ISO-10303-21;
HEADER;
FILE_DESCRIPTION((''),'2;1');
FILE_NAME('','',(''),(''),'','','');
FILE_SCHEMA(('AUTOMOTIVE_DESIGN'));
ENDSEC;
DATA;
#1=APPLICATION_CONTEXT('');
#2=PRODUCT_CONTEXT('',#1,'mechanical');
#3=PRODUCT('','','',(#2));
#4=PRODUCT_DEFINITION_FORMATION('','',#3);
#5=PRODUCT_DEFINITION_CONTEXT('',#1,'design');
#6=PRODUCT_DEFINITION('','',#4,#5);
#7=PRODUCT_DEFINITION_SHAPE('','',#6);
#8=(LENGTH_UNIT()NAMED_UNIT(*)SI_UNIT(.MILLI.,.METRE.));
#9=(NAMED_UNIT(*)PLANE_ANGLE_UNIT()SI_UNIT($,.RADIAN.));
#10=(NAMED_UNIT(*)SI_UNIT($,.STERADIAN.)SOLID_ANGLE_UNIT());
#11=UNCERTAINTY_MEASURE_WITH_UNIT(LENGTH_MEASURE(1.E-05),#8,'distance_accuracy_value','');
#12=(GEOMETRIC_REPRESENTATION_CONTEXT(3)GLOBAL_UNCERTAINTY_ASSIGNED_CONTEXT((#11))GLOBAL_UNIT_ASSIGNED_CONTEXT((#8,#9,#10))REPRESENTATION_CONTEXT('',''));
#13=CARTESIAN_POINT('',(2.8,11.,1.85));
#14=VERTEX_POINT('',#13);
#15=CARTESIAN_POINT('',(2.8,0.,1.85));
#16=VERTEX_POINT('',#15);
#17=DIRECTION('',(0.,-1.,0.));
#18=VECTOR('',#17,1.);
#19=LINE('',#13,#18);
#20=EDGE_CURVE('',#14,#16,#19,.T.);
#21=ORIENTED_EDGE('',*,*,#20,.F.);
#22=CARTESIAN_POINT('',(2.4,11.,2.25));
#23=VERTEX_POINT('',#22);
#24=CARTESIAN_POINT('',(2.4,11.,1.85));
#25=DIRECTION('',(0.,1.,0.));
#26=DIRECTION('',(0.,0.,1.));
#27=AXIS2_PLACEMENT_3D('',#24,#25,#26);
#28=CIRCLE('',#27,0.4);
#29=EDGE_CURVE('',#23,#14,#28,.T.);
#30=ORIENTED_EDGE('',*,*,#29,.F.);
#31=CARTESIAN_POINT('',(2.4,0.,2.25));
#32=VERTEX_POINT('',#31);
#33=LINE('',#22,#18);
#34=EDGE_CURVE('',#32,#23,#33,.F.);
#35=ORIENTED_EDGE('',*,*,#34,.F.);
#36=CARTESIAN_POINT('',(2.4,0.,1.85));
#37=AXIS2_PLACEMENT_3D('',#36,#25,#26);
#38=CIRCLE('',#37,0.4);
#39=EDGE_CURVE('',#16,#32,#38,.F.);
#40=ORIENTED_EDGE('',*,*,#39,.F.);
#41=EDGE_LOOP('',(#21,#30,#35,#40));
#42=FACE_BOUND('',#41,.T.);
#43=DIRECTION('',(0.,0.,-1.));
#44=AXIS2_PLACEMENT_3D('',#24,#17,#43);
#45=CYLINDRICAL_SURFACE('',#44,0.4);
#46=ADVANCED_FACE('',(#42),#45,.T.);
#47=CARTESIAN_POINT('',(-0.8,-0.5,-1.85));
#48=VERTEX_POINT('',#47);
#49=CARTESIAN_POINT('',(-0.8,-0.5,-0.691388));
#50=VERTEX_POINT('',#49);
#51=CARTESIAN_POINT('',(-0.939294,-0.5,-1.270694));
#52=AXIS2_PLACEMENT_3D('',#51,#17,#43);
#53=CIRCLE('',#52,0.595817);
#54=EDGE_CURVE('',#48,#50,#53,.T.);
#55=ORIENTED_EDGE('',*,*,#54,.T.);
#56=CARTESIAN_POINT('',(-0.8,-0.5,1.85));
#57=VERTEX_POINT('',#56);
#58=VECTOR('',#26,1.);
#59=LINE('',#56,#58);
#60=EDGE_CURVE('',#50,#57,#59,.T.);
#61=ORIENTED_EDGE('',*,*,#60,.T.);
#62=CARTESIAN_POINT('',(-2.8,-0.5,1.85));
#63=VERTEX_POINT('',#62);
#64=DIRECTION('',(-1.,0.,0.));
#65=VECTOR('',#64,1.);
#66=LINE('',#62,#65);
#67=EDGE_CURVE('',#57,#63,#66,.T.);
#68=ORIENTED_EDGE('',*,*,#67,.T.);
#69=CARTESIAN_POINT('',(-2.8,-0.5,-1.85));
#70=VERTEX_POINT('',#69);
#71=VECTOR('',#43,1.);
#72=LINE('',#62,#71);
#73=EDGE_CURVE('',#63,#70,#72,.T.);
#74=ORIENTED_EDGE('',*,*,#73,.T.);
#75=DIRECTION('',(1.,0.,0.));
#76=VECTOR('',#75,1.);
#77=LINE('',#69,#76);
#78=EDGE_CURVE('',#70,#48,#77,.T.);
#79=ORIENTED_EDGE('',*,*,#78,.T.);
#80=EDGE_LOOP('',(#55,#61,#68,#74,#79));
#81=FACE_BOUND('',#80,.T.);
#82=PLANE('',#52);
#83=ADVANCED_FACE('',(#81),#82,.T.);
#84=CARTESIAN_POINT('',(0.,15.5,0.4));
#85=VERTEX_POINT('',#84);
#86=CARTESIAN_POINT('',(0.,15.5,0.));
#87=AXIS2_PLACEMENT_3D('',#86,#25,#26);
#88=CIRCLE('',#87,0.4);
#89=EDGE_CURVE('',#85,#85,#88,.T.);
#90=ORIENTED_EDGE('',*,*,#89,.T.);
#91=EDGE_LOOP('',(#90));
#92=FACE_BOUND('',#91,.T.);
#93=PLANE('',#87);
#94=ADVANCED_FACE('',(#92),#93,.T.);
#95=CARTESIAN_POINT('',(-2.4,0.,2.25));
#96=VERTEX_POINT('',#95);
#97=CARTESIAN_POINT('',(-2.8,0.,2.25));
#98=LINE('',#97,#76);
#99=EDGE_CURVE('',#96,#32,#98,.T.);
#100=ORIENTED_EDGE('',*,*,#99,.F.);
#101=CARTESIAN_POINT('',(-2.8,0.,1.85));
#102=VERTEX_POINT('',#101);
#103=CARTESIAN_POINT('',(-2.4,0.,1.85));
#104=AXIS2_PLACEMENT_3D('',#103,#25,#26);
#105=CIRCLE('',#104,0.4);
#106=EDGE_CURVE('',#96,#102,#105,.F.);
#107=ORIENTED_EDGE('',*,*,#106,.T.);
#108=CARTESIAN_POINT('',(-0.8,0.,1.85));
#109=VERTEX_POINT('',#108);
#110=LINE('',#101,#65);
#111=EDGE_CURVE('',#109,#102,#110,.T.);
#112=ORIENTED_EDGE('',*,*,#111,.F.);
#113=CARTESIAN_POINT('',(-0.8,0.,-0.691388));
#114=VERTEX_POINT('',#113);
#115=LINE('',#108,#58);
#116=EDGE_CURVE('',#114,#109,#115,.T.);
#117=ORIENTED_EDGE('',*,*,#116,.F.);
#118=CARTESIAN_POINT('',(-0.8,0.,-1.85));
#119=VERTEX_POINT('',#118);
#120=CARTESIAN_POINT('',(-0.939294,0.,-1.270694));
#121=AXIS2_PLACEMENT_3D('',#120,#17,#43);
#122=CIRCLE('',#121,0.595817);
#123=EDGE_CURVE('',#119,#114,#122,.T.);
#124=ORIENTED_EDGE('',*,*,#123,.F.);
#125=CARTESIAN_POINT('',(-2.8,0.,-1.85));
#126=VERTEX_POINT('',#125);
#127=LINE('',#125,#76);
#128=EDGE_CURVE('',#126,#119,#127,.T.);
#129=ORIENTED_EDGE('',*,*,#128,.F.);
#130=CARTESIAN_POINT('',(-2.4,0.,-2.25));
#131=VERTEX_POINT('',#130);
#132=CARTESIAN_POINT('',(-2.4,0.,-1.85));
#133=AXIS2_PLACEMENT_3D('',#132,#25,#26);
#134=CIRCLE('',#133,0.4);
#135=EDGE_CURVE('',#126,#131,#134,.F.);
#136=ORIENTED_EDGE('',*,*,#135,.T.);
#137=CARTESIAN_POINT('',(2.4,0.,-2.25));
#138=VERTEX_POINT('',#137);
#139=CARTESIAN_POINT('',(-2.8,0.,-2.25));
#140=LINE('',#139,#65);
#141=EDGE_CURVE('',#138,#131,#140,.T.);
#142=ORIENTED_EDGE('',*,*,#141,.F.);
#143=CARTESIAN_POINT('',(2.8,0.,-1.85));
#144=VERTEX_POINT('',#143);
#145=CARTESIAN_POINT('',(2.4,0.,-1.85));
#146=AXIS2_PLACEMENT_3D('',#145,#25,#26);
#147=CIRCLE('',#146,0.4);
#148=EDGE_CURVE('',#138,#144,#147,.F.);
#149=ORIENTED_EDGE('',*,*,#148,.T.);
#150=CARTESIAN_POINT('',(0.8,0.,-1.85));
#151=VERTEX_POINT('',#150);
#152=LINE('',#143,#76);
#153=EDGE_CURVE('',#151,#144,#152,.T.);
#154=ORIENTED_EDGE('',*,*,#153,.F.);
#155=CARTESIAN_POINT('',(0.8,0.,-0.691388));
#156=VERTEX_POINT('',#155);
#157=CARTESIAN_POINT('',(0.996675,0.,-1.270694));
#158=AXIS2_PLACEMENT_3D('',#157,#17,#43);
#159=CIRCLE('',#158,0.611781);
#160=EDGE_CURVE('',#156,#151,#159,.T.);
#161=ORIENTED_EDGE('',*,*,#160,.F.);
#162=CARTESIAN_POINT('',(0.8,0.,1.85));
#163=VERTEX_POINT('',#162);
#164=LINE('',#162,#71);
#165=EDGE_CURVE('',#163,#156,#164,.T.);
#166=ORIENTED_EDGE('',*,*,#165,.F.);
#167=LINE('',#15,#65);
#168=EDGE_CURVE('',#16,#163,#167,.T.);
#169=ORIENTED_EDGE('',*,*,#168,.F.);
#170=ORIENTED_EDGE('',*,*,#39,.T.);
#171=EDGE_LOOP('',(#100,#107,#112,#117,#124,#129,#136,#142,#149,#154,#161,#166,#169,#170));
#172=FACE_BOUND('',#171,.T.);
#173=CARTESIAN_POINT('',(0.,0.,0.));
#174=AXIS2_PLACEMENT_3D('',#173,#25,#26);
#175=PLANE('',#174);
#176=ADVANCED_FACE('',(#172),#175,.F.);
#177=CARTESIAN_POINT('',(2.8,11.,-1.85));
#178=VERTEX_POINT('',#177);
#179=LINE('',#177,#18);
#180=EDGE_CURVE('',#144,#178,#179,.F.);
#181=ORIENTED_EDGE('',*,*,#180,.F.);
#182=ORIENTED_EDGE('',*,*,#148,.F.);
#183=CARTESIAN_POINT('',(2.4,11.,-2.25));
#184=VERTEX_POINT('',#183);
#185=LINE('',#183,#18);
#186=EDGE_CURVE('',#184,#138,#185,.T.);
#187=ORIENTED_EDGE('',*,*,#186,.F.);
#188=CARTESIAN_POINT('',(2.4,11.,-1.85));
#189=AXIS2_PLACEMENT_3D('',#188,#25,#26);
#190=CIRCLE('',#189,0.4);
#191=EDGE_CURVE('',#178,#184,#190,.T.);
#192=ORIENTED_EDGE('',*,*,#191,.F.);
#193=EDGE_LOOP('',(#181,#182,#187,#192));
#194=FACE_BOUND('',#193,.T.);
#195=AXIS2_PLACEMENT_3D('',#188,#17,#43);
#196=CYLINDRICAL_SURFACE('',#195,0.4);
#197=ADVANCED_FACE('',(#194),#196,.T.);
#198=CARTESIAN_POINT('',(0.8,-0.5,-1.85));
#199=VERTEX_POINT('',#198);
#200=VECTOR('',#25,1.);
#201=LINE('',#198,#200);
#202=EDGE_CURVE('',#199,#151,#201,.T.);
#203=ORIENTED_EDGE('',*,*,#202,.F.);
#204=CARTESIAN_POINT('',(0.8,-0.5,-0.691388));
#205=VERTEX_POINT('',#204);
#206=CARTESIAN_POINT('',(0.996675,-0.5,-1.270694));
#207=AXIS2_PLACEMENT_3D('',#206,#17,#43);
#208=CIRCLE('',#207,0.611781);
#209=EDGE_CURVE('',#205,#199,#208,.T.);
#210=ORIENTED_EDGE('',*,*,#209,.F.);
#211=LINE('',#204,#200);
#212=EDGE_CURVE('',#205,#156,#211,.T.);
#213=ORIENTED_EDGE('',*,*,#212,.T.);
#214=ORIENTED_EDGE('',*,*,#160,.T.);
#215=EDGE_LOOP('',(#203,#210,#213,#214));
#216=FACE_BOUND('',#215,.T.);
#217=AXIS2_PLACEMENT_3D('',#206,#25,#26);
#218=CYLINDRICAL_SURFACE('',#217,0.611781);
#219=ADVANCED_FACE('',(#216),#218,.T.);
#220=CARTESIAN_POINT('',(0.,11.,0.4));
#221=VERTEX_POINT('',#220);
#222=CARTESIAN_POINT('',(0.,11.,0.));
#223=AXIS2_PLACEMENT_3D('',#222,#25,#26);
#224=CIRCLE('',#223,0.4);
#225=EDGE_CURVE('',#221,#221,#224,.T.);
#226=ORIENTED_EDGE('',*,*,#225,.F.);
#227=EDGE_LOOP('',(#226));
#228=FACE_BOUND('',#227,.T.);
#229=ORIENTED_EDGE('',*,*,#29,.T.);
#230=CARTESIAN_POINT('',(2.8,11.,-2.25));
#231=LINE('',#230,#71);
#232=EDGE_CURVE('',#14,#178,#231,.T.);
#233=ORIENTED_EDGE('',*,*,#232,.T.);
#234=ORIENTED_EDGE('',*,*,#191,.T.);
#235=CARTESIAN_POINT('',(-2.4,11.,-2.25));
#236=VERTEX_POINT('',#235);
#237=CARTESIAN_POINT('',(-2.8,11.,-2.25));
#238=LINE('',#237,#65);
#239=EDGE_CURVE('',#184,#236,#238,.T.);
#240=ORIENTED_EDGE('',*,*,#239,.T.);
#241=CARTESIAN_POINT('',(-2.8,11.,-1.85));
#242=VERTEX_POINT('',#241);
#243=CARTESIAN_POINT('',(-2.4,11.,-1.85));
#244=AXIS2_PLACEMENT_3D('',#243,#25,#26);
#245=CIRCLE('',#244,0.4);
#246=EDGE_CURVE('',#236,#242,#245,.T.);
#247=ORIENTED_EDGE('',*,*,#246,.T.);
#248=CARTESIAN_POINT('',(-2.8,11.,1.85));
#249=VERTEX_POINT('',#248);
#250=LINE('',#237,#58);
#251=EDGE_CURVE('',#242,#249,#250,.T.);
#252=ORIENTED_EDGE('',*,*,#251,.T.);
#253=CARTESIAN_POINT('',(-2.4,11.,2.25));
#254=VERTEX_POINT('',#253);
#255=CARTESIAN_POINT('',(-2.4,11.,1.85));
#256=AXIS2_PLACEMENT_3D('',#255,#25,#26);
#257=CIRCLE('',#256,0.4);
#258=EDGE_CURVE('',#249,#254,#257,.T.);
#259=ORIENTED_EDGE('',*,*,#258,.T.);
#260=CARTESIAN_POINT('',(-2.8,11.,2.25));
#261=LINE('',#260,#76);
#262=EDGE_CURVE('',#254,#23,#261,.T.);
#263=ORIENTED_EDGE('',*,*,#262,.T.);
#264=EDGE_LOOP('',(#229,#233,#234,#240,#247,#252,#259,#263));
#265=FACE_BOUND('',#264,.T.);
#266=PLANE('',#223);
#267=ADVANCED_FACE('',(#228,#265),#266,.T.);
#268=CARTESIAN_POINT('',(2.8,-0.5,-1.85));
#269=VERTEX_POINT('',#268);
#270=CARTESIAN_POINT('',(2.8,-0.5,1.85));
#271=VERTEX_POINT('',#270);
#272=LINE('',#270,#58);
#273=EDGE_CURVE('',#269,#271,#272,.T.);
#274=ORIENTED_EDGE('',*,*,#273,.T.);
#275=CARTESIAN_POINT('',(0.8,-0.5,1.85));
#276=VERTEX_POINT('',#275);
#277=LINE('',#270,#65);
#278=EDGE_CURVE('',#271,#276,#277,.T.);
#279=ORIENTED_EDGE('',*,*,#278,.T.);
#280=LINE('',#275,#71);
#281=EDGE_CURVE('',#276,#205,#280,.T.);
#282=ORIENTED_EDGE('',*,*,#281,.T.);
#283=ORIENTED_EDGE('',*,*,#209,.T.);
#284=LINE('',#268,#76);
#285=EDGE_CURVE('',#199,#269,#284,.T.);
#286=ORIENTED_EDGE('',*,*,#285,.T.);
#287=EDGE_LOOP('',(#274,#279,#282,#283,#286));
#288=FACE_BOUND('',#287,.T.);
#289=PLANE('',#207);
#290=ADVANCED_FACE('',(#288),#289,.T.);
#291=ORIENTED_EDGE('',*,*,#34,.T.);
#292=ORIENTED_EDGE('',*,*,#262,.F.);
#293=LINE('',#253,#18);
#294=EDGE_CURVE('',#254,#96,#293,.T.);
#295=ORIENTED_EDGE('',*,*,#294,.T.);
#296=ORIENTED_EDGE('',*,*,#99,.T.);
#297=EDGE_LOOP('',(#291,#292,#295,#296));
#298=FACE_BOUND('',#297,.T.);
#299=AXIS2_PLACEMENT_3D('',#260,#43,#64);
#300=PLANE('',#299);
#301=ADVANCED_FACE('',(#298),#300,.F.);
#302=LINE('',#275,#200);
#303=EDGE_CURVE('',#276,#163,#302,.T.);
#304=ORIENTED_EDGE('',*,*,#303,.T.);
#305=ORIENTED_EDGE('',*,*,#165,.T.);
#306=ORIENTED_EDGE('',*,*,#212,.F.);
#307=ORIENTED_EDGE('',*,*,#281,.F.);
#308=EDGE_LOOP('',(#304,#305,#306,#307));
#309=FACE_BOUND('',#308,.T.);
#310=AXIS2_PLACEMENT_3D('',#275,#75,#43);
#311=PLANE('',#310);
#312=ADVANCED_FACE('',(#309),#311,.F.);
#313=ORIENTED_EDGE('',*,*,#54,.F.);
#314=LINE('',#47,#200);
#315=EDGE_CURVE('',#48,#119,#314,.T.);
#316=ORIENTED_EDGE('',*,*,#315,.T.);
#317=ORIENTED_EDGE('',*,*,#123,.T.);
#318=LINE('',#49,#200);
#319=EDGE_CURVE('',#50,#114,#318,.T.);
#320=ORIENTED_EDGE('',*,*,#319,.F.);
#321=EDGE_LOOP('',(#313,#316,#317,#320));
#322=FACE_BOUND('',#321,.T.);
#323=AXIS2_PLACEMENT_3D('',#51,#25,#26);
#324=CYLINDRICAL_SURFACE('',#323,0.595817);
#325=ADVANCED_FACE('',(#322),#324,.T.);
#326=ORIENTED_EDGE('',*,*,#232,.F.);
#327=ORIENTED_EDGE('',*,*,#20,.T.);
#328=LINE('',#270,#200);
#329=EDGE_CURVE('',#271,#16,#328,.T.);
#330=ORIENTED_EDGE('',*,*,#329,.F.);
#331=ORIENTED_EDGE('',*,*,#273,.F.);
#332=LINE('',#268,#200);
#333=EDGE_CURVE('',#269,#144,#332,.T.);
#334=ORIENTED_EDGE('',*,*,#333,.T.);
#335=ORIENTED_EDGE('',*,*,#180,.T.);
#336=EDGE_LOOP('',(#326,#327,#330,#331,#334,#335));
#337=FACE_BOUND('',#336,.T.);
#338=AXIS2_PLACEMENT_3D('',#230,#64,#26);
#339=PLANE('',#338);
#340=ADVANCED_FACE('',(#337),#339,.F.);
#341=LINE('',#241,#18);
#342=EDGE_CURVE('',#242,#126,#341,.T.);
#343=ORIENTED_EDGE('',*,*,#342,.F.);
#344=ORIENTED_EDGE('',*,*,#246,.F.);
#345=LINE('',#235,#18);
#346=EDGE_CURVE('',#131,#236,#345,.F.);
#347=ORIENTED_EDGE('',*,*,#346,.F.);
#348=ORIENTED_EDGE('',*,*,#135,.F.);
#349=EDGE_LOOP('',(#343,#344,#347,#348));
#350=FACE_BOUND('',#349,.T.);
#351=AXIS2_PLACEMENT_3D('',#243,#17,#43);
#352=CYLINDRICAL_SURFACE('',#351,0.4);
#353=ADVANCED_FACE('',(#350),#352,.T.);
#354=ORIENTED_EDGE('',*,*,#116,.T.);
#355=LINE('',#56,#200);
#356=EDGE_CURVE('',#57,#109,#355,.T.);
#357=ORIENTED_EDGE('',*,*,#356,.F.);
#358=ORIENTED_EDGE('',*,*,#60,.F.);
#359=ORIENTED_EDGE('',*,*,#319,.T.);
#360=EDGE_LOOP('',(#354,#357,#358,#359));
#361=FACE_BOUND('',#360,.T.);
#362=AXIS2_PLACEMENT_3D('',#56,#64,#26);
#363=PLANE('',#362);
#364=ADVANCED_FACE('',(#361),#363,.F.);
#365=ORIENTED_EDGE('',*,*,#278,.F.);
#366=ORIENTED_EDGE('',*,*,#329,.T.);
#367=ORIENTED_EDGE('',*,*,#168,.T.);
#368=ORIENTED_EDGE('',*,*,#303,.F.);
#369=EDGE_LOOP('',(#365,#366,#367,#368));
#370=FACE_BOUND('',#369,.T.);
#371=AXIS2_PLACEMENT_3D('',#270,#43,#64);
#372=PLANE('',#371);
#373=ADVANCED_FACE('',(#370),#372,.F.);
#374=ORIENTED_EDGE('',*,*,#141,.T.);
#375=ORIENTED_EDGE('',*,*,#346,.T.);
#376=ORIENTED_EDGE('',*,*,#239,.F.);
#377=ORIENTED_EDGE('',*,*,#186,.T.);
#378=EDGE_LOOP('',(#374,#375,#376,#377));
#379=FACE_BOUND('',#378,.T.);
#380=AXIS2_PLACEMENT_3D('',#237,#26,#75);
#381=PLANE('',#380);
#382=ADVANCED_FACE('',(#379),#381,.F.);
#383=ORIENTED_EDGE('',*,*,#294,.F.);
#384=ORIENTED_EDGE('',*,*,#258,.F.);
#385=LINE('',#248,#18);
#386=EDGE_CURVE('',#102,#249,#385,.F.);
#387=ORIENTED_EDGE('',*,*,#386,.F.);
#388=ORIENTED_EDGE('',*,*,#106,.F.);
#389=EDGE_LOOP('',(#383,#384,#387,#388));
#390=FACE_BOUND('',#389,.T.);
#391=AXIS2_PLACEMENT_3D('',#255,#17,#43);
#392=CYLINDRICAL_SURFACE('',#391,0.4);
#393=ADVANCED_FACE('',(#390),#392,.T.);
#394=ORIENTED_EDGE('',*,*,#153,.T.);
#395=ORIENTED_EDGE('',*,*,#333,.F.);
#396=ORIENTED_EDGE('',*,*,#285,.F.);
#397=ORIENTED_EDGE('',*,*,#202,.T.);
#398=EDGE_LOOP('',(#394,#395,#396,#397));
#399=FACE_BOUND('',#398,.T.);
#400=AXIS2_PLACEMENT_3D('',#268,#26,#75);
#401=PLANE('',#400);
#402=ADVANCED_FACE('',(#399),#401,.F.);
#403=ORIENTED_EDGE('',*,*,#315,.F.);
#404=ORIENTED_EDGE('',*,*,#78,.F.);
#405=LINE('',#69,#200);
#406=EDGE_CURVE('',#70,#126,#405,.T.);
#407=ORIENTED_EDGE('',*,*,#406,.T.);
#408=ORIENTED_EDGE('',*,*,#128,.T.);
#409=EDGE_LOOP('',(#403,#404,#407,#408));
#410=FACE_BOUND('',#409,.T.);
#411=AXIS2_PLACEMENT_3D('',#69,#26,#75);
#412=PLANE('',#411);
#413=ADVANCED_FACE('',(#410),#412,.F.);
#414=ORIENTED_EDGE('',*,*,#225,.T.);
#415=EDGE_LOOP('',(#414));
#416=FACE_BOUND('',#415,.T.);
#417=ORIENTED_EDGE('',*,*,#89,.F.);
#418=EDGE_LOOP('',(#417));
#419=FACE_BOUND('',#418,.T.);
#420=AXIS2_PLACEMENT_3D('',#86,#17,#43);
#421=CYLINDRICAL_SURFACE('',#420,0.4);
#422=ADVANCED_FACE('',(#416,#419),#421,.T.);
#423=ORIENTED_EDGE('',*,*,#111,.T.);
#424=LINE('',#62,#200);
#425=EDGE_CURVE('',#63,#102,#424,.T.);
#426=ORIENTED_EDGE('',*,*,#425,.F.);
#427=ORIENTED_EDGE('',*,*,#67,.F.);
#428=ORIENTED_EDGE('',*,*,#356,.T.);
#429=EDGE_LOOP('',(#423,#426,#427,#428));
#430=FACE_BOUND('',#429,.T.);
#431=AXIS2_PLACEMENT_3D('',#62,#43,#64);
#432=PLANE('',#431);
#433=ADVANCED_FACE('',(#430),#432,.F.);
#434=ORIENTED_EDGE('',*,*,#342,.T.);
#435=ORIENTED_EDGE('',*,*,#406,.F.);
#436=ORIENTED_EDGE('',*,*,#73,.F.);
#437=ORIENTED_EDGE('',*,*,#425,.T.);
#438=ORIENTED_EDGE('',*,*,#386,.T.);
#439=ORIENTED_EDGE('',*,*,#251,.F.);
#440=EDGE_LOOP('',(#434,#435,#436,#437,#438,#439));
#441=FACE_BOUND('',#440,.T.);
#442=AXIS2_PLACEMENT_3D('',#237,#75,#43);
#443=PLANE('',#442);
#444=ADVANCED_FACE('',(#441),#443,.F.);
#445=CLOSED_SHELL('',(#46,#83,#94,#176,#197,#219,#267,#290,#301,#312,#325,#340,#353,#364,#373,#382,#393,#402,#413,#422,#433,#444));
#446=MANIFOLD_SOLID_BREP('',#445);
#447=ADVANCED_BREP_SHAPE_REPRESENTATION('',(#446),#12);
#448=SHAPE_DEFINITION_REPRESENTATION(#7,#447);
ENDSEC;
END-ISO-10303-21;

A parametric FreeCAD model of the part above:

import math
import FreeCAD as App
import Part
import Sketcher
from FreeCAD import Vector
Q = App.Units.Quantity


def edges_at(feature, points):
    """Names of the edges that pass closest to the given points."""
    edges = feature.Shape.Edges
    near = lambda p: min(range(len(edges)), key=lambda i: edges[i].distToShape(Part.Vertex(*p))[0])
    return sorted({f"Edge{near(p) + 1}" for p in points})


def add_polygon(sketch, points):
    """Adds a closed chain of lines whose ends are joined by coincident constraints."""
    first, n = sketch.GeometryCount, len(points)
    for a, b in zip(points, points[1:] + points[:1]):
        sketch.addGeometry(Part.LineSegment(App.Vector(*a, 0), App.Vector(*b, 0)), False)
    for i in range(n):
        sketch.addConstraint(Sketcher.Constraint("Coincident", first + i, 2, first + (i + 1) % n, 1))

doc = App.newDocument("Part")
body = doc.addObject("PartDesign::Body", "Body")

# Sketch on XZ plane
sketch1 = body.newObject("Sketcher::SketchObject", "Sketch")
sketch1.AttachmentSupport = (doc.getObject("XZ_Plane"), [""])
sketch1.MapMode = "FlatFace"
add_polygon(sketch1, [(-2.8, -2.2), (-2.8, 2.2), (2.8, 2.2), (2.8, -2.2)])  # lines 0-3
sketch1.addConstraint([
    Sketcher.Constraint("Vertical", 0),
    Sketcher.Constraint("Horizontal", 1),
    Sketcher.Constraint("Vertical", 2),
    Sketcher.Constraint("Horizontal", 3),
    Sketcher.Constraint("Symmetric", 0, 2, 2, 2, -1, 1),
    Sketcher.Constraint("DistanceX", 1, 1, 1, 2, Q("5.6 mm")),
    Sketcher.Constraint("DistanceY", 0, 1, 0, 2, Q("4.5 mm")),
])
pad1 = body.newObject("PartDesign::Pad", "Pad")
pad1.Profile = sketch1
pad1.Length = 11
pad1.Reversed = True

# Sketch on XZ plane
sketch2 = body.newObject("Sketcher::SketchObject", "Sketch001")
sketch2.AttachmentSupport = (doc.getObject("XZ_Plane"), [""])
sketch2.MapMode = "FlatFace"
sketch2.AttachmentOffset = App.Placement(Vector(0, 0, -11), App.Rotation())
sketch2.addGeometry(Part.Circle(Vector(0, 0, 0), Vector(0, 0, 1), 0.4), False)
sketch2.addConstraint([
    Sketcher.Constraint("Coincident", 0, 3, -1, 1),
    Sketcher.Constraint("Diameter", 0, Q("0.8 mm")),
])
pad2 = body.newObject("PartDesign::Pad", "Pad001")
pad2.Profile = sketch2
pad2.Length = 4.5
pad2.Reversed = True
doc.recompute()

fillet = body.newObject("PartDesign::Fillet", "Fillet")
fillet.Base = (pad2, edges_at(pad2, [
    (2.8, 5.5, 2.25),
    (-2.8, 5.5, 2.25),
    (-2.8, 5.5, -2.25),
    (2.8, 5.5, -2.25),
]))
fillet.Radius = 0.4

# Sketch on XZ plane
sketch3 = body.newObject("Sketcher::SketchObject", "Sketch002")
sketch3.AttachmentSupport = (doc.getObject("XZ_Plane"), [""])
sketch3.MapMode = "FlatFace"
sketch3.addGeometry([
    Part.LineSegment(Vector(-0.8, 1.9, 0), Vector(-2.8, 1.9, 0)),  # 0
    Part.LineSegment(Vector(-2.8, 1.9, 0), Vector(-2.8, -1.9, 0)),  # 1
    Part.LineSegment(Vector(-2.8, -1.9, 0), Vector(-0.8, -1.9, 0)),  # 2
    Part.ArcOfCircle(Part.Circle(Vector(-0.9, -1.3, 0), Vector(0, 0, 1), 0.6), math.radians(-76), math.radians(76)),  # 3
    Part.LineSegment(Vector(-0.8, -0.7, 0), Vector(-0.8, 1.9, 0)),  # 4
    Part.LineSegment(Vector(0.8, -1.9, 0), Vector(2.8, -1.9, 0)),  # 5
    Part.LineSegment(Vector(2.8, -1.9, 0), Vector(2.8, 1.9, 0)),  # 6
    Part.LineSegment(Vector(2.8, 1.9, 0), Vector(0.8, 1.9, 0)),  # 7
    Part.LineSegment(Vector(0.8, 1.9, 0), Vector(0.8, -0.7, 0)),  # 8
    Part.ArcOfCircle(Part.Circle(Vector(1, -1.3, 0), Vector(0, 0, 1), 0.6), math.radians(109), math.radians(251)),  # 9
], False)
sketch3.addConstraint([
    Sketcher.Constraint("Coincident", 0, 2, 1, 1),
    Sketcher.Constraint("Coincident", 1, 2, 2, 1),
    Sketcher.Constraint("Coincident", 2, 2, 3, 1),
    Sketcher.Constraint("Coincident", 3, 2, 4, 1),
    Sketcher.Constraint("Coincident", 4, 2, 0, 1),
    Sketcher.Constraint("Coincident", 5, 2, 6, 1),
    Sketcher.Constraint("Coincident", 6, 2, 7, 1),
    Sketcher.Constraint("Coincident", 7, 2, 8, 1),
    Sketcher.Constraint("Coincident", 8, 2, 9, 1),
    Sketcher.Constraint("Coincident", 9, 2, 5, 1),
    Sketcher.Constraint("Horizontal", 0),
    Sketcher.Constraint("Vertical", 1),
    Sketcher.Constraint("Horizontal", 2),
    Sketcher.Constraint("Vertical", 4),
    Sketcher.Constraint("Horizontal", 5),
    Sketcher.Constraint("Vertical", 6),
    Sketcher.Constraint("Horizontal", 7),
    Sketcher.Constraint("Vertical", 8),
    Sketcher.Constraint("Symmetric", 0, 2, 5, 2, -1, 1),
    Sketcher.Constraint("Symmetric", 2, 2, 7, 2, -1, 1),
    Sketcher.Constraint("Symmetric", 4, 2, 7, 2, -2),
    Sketcher.Constraint("Horizontal", 3, 3, 9, 3),
    Sketcher.Constraint("Horizontal", 3, 2, 8, 2),
    Sketcher.Constraint("DistanceX", 0, 2, 0, 1, Q("2 mm")),
    Sketcher.Constraint("DistanceY", 1, 2, 1, 1, Q("3.7 mm")),
    Sketcher.Constraint("DistanceX", 0, 2, -1, 1, Q("2.8 mm")),
    Sketcher.Constraint("Radius", 9, Q("0.611781 mm")),
    Sketcher.Constraint("Radius", 3, Q("0.595817 mm")),
    Sketcher.Constraint("DistanceY", 4, 1, 4, 2, Q("2.541388 mm")),
])
pad3 = body.newObject("PartDesign::Pad", "Pad002")
pad3.Profile = sketch3
pad3.Length = 0.5

doc.recompute()
